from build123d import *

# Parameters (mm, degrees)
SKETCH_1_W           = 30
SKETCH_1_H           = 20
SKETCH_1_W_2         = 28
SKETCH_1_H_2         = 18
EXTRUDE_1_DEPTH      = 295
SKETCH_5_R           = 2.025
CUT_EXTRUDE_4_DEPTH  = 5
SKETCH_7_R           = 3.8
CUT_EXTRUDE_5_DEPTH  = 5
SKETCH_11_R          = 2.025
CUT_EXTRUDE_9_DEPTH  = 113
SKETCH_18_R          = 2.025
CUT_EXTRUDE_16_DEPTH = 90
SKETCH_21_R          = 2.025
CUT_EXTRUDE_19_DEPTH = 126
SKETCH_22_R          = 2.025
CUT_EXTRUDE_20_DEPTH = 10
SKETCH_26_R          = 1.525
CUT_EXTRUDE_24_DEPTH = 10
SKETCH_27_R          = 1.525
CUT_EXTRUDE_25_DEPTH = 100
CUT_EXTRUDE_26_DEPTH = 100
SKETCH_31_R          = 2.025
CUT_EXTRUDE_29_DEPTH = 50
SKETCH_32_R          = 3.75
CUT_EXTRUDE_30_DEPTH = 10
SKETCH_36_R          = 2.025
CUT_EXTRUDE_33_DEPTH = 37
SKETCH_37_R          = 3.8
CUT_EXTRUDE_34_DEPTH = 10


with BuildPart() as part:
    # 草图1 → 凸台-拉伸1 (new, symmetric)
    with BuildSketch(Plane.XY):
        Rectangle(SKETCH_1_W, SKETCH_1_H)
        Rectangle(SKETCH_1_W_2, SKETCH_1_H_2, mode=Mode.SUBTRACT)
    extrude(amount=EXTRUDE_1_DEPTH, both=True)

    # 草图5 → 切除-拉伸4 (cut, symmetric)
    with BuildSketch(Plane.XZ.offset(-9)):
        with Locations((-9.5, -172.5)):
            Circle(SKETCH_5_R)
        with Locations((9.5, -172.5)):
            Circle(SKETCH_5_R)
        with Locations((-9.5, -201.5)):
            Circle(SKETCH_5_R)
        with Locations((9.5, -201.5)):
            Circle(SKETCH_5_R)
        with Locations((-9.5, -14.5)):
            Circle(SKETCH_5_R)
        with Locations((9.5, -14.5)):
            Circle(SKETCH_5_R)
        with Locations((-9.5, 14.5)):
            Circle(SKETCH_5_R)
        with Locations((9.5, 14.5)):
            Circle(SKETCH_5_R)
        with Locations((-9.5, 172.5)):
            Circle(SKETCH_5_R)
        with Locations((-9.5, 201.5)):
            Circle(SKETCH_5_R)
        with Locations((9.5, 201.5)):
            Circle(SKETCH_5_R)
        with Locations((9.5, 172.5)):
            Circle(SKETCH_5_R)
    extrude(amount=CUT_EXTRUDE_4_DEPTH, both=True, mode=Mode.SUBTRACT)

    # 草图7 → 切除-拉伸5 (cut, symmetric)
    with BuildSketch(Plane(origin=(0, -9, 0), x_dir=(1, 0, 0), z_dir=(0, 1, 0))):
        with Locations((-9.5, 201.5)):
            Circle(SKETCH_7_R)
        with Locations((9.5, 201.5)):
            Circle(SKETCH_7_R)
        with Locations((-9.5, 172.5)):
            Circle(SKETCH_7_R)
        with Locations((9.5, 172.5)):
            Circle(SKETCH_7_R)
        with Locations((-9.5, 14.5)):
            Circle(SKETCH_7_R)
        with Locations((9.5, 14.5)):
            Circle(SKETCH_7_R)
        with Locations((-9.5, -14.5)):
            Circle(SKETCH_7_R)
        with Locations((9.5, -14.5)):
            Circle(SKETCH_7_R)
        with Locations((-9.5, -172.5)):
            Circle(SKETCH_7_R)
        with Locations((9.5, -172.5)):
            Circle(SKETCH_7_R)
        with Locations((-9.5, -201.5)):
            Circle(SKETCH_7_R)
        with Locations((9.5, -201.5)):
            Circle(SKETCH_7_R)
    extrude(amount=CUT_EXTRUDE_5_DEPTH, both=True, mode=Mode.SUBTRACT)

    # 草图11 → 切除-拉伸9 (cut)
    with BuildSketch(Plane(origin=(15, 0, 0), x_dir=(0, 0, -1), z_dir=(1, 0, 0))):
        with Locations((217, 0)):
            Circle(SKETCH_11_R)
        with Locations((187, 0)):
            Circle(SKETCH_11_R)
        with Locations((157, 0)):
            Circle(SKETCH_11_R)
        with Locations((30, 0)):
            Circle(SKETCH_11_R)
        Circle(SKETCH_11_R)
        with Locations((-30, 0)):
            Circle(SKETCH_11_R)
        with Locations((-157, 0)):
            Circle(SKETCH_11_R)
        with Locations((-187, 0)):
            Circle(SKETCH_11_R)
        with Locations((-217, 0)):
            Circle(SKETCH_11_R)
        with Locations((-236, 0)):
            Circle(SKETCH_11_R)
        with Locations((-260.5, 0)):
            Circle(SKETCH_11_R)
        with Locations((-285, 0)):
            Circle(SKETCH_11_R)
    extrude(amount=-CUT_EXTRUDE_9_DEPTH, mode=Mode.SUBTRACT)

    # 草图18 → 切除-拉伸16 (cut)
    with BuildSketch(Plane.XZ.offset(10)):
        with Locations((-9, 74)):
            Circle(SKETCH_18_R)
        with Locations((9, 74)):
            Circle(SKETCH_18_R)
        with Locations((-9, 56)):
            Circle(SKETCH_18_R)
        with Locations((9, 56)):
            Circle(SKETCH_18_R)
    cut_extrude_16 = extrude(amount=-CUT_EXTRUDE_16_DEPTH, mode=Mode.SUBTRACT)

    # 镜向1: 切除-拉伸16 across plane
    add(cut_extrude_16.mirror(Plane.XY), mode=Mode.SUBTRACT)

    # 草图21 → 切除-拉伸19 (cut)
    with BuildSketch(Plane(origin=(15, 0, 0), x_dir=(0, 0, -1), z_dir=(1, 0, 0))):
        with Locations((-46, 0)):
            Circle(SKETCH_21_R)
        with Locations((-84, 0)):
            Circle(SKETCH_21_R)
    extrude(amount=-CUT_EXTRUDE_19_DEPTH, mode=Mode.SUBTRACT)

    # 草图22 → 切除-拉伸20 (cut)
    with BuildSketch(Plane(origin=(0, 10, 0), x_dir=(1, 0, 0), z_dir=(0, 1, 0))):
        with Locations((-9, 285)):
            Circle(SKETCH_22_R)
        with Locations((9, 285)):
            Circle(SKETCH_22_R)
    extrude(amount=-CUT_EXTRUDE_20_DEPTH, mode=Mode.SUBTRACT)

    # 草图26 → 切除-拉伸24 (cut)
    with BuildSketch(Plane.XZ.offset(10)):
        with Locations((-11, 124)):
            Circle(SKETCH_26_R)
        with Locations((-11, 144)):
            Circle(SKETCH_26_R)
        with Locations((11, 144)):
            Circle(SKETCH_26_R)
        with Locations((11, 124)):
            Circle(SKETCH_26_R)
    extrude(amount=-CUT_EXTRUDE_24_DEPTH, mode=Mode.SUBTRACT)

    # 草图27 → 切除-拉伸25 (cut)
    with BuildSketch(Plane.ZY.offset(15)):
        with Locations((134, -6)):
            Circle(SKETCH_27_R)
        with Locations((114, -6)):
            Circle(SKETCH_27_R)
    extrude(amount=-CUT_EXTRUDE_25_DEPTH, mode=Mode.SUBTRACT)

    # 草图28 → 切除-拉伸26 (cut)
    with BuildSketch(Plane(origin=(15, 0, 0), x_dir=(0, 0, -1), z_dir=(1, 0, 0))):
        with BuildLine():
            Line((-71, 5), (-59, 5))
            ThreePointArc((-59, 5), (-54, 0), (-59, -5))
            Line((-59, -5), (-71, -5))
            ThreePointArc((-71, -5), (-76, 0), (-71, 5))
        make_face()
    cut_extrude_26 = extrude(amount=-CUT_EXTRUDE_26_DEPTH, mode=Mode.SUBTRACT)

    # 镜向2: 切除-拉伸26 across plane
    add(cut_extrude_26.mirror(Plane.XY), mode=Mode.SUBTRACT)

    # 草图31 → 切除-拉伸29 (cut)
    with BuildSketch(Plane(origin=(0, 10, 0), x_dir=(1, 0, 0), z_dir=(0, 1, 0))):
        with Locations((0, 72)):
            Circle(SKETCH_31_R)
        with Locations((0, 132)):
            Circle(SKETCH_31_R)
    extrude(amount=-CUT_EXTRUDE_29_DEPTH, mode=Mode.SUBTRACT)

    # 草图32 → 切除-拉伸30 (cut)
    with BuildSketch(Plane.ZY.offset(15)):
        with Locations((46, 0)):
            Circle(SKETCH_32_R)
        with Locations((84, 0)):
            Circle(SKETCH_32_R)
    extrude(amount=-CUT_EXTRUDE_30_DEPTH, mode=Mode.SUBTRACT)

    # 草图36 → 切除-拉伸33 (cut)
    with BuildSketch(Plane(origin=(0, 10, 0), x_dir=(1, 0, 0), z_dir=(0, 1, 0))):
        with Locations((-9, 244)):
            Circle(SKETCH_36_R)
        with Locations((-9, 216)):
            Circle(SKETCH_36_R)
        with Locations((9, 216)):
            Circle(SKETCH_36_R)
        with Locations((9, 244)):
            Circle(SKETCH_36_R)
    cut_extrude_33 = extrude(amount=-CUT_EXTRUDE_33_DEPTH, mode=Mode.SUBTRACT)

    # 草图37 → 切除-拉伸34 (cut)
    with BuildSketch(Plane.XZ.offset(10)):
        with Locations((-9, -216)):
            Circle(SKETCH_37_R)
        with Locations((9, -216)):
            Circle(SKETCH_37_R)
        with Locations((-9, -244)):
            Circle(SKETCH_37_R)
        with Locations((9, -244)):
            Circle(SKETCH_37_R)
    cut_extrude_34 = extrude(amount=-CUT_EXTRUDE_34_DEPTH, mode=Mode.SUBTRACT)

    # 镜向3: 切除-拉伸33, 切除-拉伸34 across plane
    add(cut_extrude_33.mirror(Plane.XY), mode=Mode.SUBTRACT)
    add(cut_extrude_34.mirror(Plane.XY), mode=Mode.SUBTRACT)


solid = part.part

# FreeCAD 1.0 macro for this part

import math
import FreeCAD as App
import Part
import Sketcher
Q = App.Units.Quantity

doc = App.newDocument("Part")
params = doc.addObject("Spreadsheet::Sheet", "Params")
for row, (alias, value) in enumerate([
    ("sketch1_width", "30 mm"),
    ("sketch1_width2", "28 mm"),
    ("sketch1_height", "20 mm"),
    ("sketch1_height2", "18 mm"),
    ("pad1_length", "590 mm"),
    ("sketch2_diameter", "4.05 mm"),
    ("pocket1_length", "10 mm"),
    ("sketch3_diameter", "7.6 mm"),
    ("pocket2_length", "10 mm"),
    ("sketch4_diameter", "4.05 mm"),
    ("pocket3_length", "113 mm"),
    ("sketch5_diameter", "4.05 mm"),
    ("pocket4_length", "90 mm"),
    ("sketch6_diameter", "4.05 mm"),
    ("pocket5_length", "126 mm"),
    ("sketch7_diameter", "4.05 mm"),
    ("pocket6_length", "10 mm"),
    ("sketch8_diameter", "3.05 mm"),
    ("pocket7_length", "10 mm"),
    ("sketch9_diameter", "3.05 mm"),
    ("pocket8_length", "100 mm"),
    ("sketch10_radius", "5 mm"),
    ("sketch10_height", "12 mm"),
    ("pocket9_length", "100 mm"),
    ("sketch11_diameter", "4.05 mm"),
    ("pocket10_length", "50 mm"),
    ("sketch12_diameter", "7.5 mm"),
    ("pocket11_length", "10 mm"),
    ("sketch13_diameter", "4.05 mm"),
    ("pocket12_length", "37 mm"),
    ("sketch14_diameter", "7.6 mm"),
    ("pocket13_length", "10 mm"),
], start=1):
    params.set(f"A{row}", alias)
    params.set(f"B{row}", "=" + value)
    params.setAlias(f"B{row}", alias)

body = doc.addObject("PartDesign::Body", "Body")

# Sketch on XY plane
sketch1 = body.newObject("Sketcher::SketchObject", "Sketch")
sketch1.AttachmentSupport = (doc.getObject("XY_Plane"), [""])
sketch1.MapMode = "FlatFace"
sketch1.addGeometry(Part.LineSegment(App.Vector(-15, 10, 0), App.Vector(-15, -10, 0)), False)
sketch1.addGeometry(Part.LineSegment(App.Vector(-15, -10, 0), App.Vector(15, -10, 0)), False)
sketch1.addGeometry(Part.LineSegment(App.Vector(15, -10, 0), App.Vector(15, 10, 0)), False)
sketch1.addGeometry(Part.LineSegment(App.Vector(15, 10, 0), App.Vector(-15, 10, 0)), False)
sketch1.addGeometry(Part.LineSegment(App.Vector(14, -9, 0), App.Vector(-14, -9, 0)), False)
sketch1.addGeometry(Part.LineSegment(App.Vector(-14, -9, 0), App.Vector(-14, 9, 0)), False)
sketch1.addGeometry(Part.LineSegment(App.Vector(-14, 9, 0), App.Vector(14, 9, 0)), False)
sketch1.addGeometry(Part.LineSegment(App.Vector(14, 9, 0), App.Vector(14, -9, 0)), False)
sketch1.addConstraint(Sketcher.Constraint("Coincident", 0, 2, 1, 1))
sketch1.addConstraint(Sketcher.Constraint("Coincident", 1, 2, 2, 1))
sketch1.addConstraint(Sketcher.Constraint("Coincident", 2, 2, 3, 1))
sketch1.addConstraint(Sketcher.Constraint("Coincident", 3, 2, 0, 1))
sketch1.addConstraint(Sketcher.Constraint("Coincident", 4, 2, 5, 1))
sketch1.addConstraint(Sketcher.Constraint("Coincident", 5, 2, 6, 1))
sketch1.addConstraint(Sketcher.Constraint("Coincident", 6, 2, 7, 1))
sketch1.addConstraint(Sketcher.Constraint("Coincident", 7, 2, 4, 1))
sketch1.addConstraint(Sketcher.Constraint("Vertical", 0))
sketch1.addConstraint(Sketcher.Constraint("Horizontal", 1))
sketch1.addConstraint(Sketcher.Constraint("Vertical", 2))
sketch1.addConstraint(Sketcher.Constraint("Horizontal", 3))
sketch1.addConstraint(Sketcher.Constraint("Horizontal", 4))
sketch1.addConstraint(Sketcher.Constraint("Vertical", 5))
sketch1.addConstraint(Sketcher.Constraint("Horizontal", 6))
sketch1.addConstraint(Sketcher.Constraint("Vertical", 7))
sketch1.addConstraint(Sketcher.Constraint("Symmetric", 0, 2, 2, 2, -1, 1))
sketch1.addConstraint(Sketcher.Constraint("Symmetric", 4, 2, 6, 2, -1, 1))
sketch1.addConstraint(Sketcher.Constraint("DistanceX", 1, 1, 1, 2, Q("30 mm")))
sketch1.addConstraint(Sketcher.Constraint("DistanceX", 4, 2, 4, 1, Q("28 mm")))
sketch1.addConstraint(Sketcher.Constraint("DistanceY", 0, 2, 0, 1, Q("20 mm")))
sketch1.addConstraint(Sketcher.Constraint("DistanceY", 5, 1, 5, 2, Q("18 mm")))
sketch1.setExpression("Constraints[18]", "Params.sketch1_width")
sketch1.setExpression("Constraints[19]", "Params.sketch1_width2")
sketch1.setExpression("Constraints[20]", "Params.sketch1_height")
sketch1.setExpression("Constraints[21]", "Params.sketch1_height2")
pad1 = body.newObject("PartDesign::Pad", "Pad")
pad1.Profile = sketch1
pad1.setExpression("Length", "Params.pad1_length")
pad1.Midplane = True

# Sketch on XZ plane
sketch2 = body.newObject("Sketcher::SketchObject", "Sketch001")
sketch2.AttachmentSupport = (doc.getObject("XZ_Plane"), [""])
sketch2.MapMode = "FlatFace"
sketch2.AttachmentOffset = App.Placement(App.Vector(0, 0, -9), App.Rotation())
sketch2.addGeometry(Part.Circle(App.Vector(-9.5, -172.5, 0), App.Vector(0, 0, 1), 2), False)
sketch2.addGeometry(Part.Circle(App.Vector(9.5, -172.5, 0), App.Vector(0, 0, 1), 2), False)
sketch2.addGeometry(Part.Circle(App.Vector(-9.5, -201.5, 0), App.Vector(0, 0, 1), 2), False)
sketch2.addGeometry(Part.Circle(App.Vector(9.5, -201.5, 0), App.Vector(0, 0, 1), 2), False)
sketch2.addGeometry(Part.Circle(App.Vector(-9.5, -14.5, 0), App.Vector(0, 0, 1), 2), False)
sketch2.addGeometry(Part.Circle(App.Vector(9.5, -14.5, 0), App.Vector(0, 0, 1), 2), False)
sketch2.addGeometry(Part.Circle(App.Vector(-9.5, 14.5, 0), App.Vector(0, 0, 1), 2), False)
sketch2.addGeometry(Part.Circle(App.Vector(9.5, 14.5, 0), App.Vector(0, 0, 1), 2), False)
sketch2.addGeometry(Part.Circle(App.Vector(-9.5, 172.5, 0), App.Vector(0, 0, 1), 2), False)
sketch2.addGeometry(Part.Circle(App.Vector(-9.5, 201.5, 0), App.Vector(0, 0, 1), 2), False)
sketch2.addGeometry(Part.Circle(App.Vector(9.5, 201.5, 0), App.Vector(0, 0, 1), 2), False)
sketch2.addGeometry(Part.Circle(App.Vector(9.5, 172.5, 0), App.Vector(0, 0, 1), 2), False)
sketch2.addConstraint(Sketcher.Constraint("Equal", 0, 1))
sketch2.addConstraint(Sketcher.Constraint("Equal", 1, 2))
sketch2.addConstraint(Sketcher.Constraint("Equal", 2, 3))
sketch2.addConstraint(Sketcher.Constraint("Equal", 3, 4))
sketch2.addConstraint(Sketcher.Constraint("Equal", 4, 5))
sketch2.addConstraint(Sketcher.Constraint("Equal", 5, 6))
sketch2.addConstraint(Sketcher.Constraint("Equal", 6, 7))
sketch2.addConstraint(Sketcher.Constraint("Equal", 7, 8))
sketch2.addConstraint(Sketcher.Constraint("Equal", 8, 9))
sketch2.addConstraint(Sketcher.Constraint("Equal", 9, 10))
sketch2.addConstraint(Sketcher.Constraint("Equal", 10, 11))
sketch2.addConstraint(Sketcher.Constraint("Symmetric", 5, 3, 6, 3, -1, 1))
sketch2.addConstraint(Sketcher.Constraint("Symmetric", 4, 3, 7, 3, -1, 1))
sketch2.addConstraint(Sketcher.Constraint("Symmetric", 1, 3, 8, 3, -1, 1))
sketch2.addConstraint(Sketcher.Constraint("Symmetric", 3, 3, 9, 3, -1, 1))
sketch2.addConstraint(Sketcher.Constraint("Symmetric", 2, 3, 10, 3, -1, 1))
sketch2.addConstraint(Sketcher.Constraint("Symmetric", 0, 3, 11, 3, -1, 1))
sketch2.addConstraint(Sketcher.Constraint("Symmetric", 0, 3, 1, 3, -2))
sketch2.addConstraint(Sketcher.Constraint("Symmetric", 2, 3, 3, 3, -2))
sketch2.addConstraint(Sketcher.Constraint("Symmetric", 4, 3, 5, 3, -2))
sketch2.addConstraint(Sketcher.Constraint("Vertical", 0, 3, 2, 3))
sketch2.addConstraint(Sketcher.Constraint("Vertical", 2, 3, 4, 3))
sketch2.addConstraint(Sketcher.Constraint("Diameter", 0, Q("4.05 mm")))
sketch2.addConstraint(Sketcher.Constraint("DistanceX", 0, 3, 1, 3, Q("19 mm")))
sketch2.addConstraint(Sketcher.Constraint("DistanceY", 2, 3, 0, 3, Q("29 mm")))
sketch2.addConstraint(Sketcher.Constraint("DistanceY", 0, 3, 4, 3, Q("158 mm")))
sketch2.addConstraint(Sketcher.Constraint("DistanceY", 4, 3, 6, 3, Q("29 mm")))
sketch2.setExpression("Constraints[22]", "Params.sketch2_diameter")
pocket1 = body.newObject("PartDesign::Pocket", "Pocket")
pocket1.Profile = sketch2
pocket1.setExpression("Length", "Params.pocket1_length")
pocket1.Midplane = True

# Sketch on XZ plane
sketch3 = body.newObject("Sketcher::SketchObject", "Sketch002")
sketch3.AttachmentSupport = (doc.getObject("XZ_Plane"), [""])
sketch3.MapMode = "FlatFace"
sketch3.AttachmentOffset = App.Placement(App.Vector(0, 0, 9), App.Rotation())
sketch3.addGeometry(Part.Circle(App.Vector(-9.5, -201.5, 0), App.Vector(0, 0, 1), 3.8), False)
sketch3.addGeometry(Part.Circle(App.Vector(9.5, -201.5, 0), App.Vector(0, 0, 1), 3.8), False)
sketch3.addGeometry(Part.Circle(App.Vector(-9.5, -172.5, 0), App.Vector(0, 0, 1), 3.8), False)
sketch3.addGeometry(Part.Circle(App.Vector(9.5, -172.5, 0), App.Vector(0, 0, 1), 3.8), False)
sketch3.addGeometry(Part.Circle(App.Vector(-9.5, -14.5, 0), App.Vector(0, 0, 1), 3.8), False)
sketch3.addGeometry(Part.Circle(App.Vector(9.5, -14.5, 0), App.Vector(0, 0, 1), 3.8), False)
sketch3.addGeometry(Part.Circle(App.Vector(-9.5, 14.5, 0), App.Vector(0, 0, 1), 3.8), False)
sketch3.addGeometry(Part.Circle(App.Vector(9.5, 14.5, 0), App.Vector(0, 0, 1), 3.8), False)
sketch3.addGeometry(Part.Circle(App.Vector(-9.5, 172.5, 0), App.Vector(0, 0, 1), 3.8), False)
sketch3.addGeometry(Part.Circle(App.Vector(9.5, 172.5, 0), App.Vector(0, 0, 1), 3.8), False)
sketch3.addGeometry(Part.Circle(App.Vector(-9.5, 201.5, 0), App.Vector(0, 0, 1), 3.8), False)
sketch3.addGeometry(Part.Circle(App.Vector(9.5, 201.5, 0), App.Vector(0, 0, 1), 3.8), False)
sketch3.addConstraint(Sketcher.Constraint("Equal", 0, 1))
sketch3.addConstraint(Sketcher.Constraint("Equal", 1, 2))
sketch3.addConstraint(Sketcher.Constraint("Equal", 2, 3))
sketch3.addConstraint(Sketcher.Constraint("Equal", 3, 4))
sketch3.addConstraint(Sketcher.Constraint("Equal", 4, 5))
sketch3.addConstraint(Sketcher.Constraint("Equal", 5, 6))
sketch3.addConstraint(Sketcher.Constraint("Equal", 6, 7))
sketch3.addConstraint(Sketcher.Constraint("Equal", 7, 8))
sketch3.addConstraint(Sketcher.Constraint("Equal", 8, 9))
sketch3.addConstraint(Sketcher.Constraint("Equal", 9, 10))
sketch3.addConstraint(Sketcher.Constraint("Equal", 10, 11))
sketch3.addConstraint(Sketcher.Constraint("Symmetric", 5, 3, 6, 3, -1, 1))
sketch3.addConstraint(Sketcher.Constraint("Symmetric", 4, 3, 7, 3, -1, 1))
sketch3.addConstraint(Sketcher.Constraint("Symmetric", 3, 3, 8, 3, -1, 1))
sketch3.addConstraint(Sketcher.Constraint("Symmetric", 2, 3, 9, 3, -1, 1))
sketch3.addConstraint(Sketcher.Constraint("Symmetric", 1, 3, 10, 3, -1, 1))
sketch3.addConstraint(Sketcher.Constraint("Symmetric", 0, 3, 11, 3, -1, 1))
sketch3.addConstraint(Sketcher.Constraint("Symmetric", 0, 3, 1, 3, -2))
sketch3.addConstraint(Sketcher.Constraint("Symmetric", 2, 3, 3, 3, -2))
sketch3.addConstraint(Sketcher.Constraint("Symmetric", 4, 3, 5, 3, -2))
sketch3.addConstraint(Sketcher.Constraint("Vertical", 0, 3, 2, 3))
sketch3.addConstraint(Sketcher.Constraint("Vertical", 2, 3, 4, 3))
sketch3.addConstraint(Sketcher.Constraint("Diameter", 0, Q("7.6 mm")))
sketch3.addConstraint(Sketcher.Constraint("DistanceX", 0, 3, 1, 3, Q("19 mm")))
sketch3.addConstraint(Sketcher.Constraint("DistanceY", 0, 3, 2, 3, Q("29 mm")))
sketch3.addConstraint(Sketcher.Constraint("DistanceY", 2, 3, 4, 3, Q("158 mm")))
sketch3.addConstraint(Sketcher.Constraint("DistanceY", 4, 3, 6, 3, Q("29 mm")))
sketch3.setExpression("Constraints[22]", "Params.sketch3_diameter")
pocket2 = body.newObject("PartDesign::Pocket", "Pocket001")
pocket2.Profile = sketch3
pocket2.setExpression("Length", "Params.pocket2_length")
pocket2.Midplane = True

# Sketch on YZ plane
sketch4 = body.newObject("Sketcher::SketchObject", "Sketch003")
sketch4.AttachmentSupport = (doc.getObject("YZ_Plane"), [""])
sketch4.MapMode = "FlatFace"
sketch4.AttachmentOffset = App.Placement(App.Vector(0, 0, 15), App.Rotation())
sketch4.addGeometry(Part.Circle(App.Vector(0, -217, 0), App.Vector(0, 0, 1), 2), False)
sketch4.addGeometry(Part.Circle(App.Vector(0, -187, 0), App.Vector(0, 0, 1), 2), False)
sketch4.addGeometry(Part.Circle(App.Vector(0, -157, 0), App.Vector(0, 0, 1), 2), False)
sketch4.addGeometry(Part.Circle(App.Vector(0, -30, 0), App.Vector(0, 0, 1), 2), False)
sketch4.addGeometry(Part.Circle(App.Vector(0, 0, 0), App.Vector(0, 0, 1), 2), False)
sketch4.addGeometry(Part.Circle(App.Vector(0, 30, 0), App.Vector(0, 0, 1), 2), False)
sketch4.addGeometry(Part.Circle(App.Vector(0, 157, 0), App.Vector(0, 0, 1), 2), False)
sketch4.addGeometry(Part.Circle(App.Vector(0, 187, 0), App.Vector(0, 0, 1), 2), False)
sketch4.addGeometry(Part.Circle(App.Vector(0, 217, 0), App.Vector(0, 0, 1), 2), False)
sketch4.addGeometry(Part.Circle(App.Vector(0, 236, 0), App.Vector(0, 0, 1), 2), False)
sketch4.addGeometry(Part.Circle(App.Vector(0, 260.5, 0), App.Vector(0, 0, 1), 2), False)
sketch4.addGeometry(Part.Circle(App.Vector(0, 285, 0), App.Vector(0, 0, 1), 2), False)
sketch4.addConstraint(Sketcher.Constraint("Coincident", 4, 3, -1, 1))
sketch4.addConstraint(Sketcher.Constraint("Equal", 0, 1))
sketch4.addConstraint(Sketcher.Constraint("Equal", 1, 2))
sketch4.addConstraint(Sketcher.Constraint("Equal", 2, 3))
sketch4.addConstraint(Sketcher.Constraint("Equal", 3, 4))
sketch4.addConstraint(Sketcher.Constraint("Equal", 4, 5))
sketch4.addConstraint(Sketcher.Constraint("Equal", 5, 6))
sketch4.addConstraint(Sketcher.Constraint("Equal", 6, 7))
sketch4.addConstraint(Sketcher.Constraint("Equal", 7, 8))
sketch4.addConstraint(Sketcher.Constraint("Equal", 8, 9))
sketch4.addConstraint(Sketcher.Constraint("Equal", 9, 10))
sketch4.addConstraint(Sketcher.Constraint("Equal", 10, 11))
sketch4.addConstraint(Sketcher.Constraint("Symmetric", 3, 3, 5, 3, -1, 1))
sketch4.addConstraint(Sketcher.Constraint("Symmetric", 2, 3, 6, 3, -1, 1))
sketch4.addConstraint(Sketcher.Constraint("Symmetric", 1, 3, 7, 3, -1, 1))
sketch4.addConstraint(Sketcher.Constraint("Symmetric", 0, 3, 8, 3, -1, 1))
sketch4.addConstraint(Sketcher.Constraint("PointOnObject", 0, 3, -2))
sketch4.addConstraint(Sketcher.Constraint("PointOnObject", 1, 3, -2))
sketch4.addConstraint(Sketcher.Constraint("PointOnObject", 2, 3, -2))
sketch4.addConstraint(Sketcher.Constraint("PointOnObject", 3, 3, -2))
sketch4.addConstraint(Sketcher.Constraint("PointOnObject", 9, 3, -2))
sketch4.addConstraint(Sketcher.Constraint("PointOnObject", 10, 3, -2))
sketch4.addConstraint(Sketcher.Constraint("PointOnObject", 11, 3, -2))
sketch4.addConstraint(Sketcher.Constraint("Diameter", 0, Q("4.05 mm")))
sketch4.addConstraint(Sketcher.Constraint("DistanceY", 0, 3, -1, 1, Q("217 mm")))
sketch4.addConstraint(Sketcher.Constraint("DistanceY", 1, 3, -1, 1, Q("187 mm")))
sketch4.addConstraint(Sketcher.Constraint("DistanceY", 2, 3, -1, 1, Q("157 mm")))
sketch4.addConstraint(Sketcher.Constraint("DistanceY", 3, 3, -1, 1, Q("30 mm")))
sketch4.addConstraint(Sketcher.Constraint("DistanceY", -1, 1, 9, 3, Q("236 mm")))
sketch4.addConstraint(Sketcher.Constraint("DistanceY", -1, 1, 11, 3, Q("285 mm")))
sketch4.addConstraint(Sketcher.Constraint("DistanceY", -1, 1, 10, 3, Q("260.5 mm")))
sketch4.setExpression("Constraints[23]", "Params.sketch4_diameter")
pocket3 = body.newObject("PartDesign::Pocket", "Pocket002")
pocket3.Profile = sketch4
pocket3.setExpression("Length", "Params.pocket3_length")

# Sketch on XZ plane
sketch5 = body.newObject("Sketcher::SketchObject", "Sketch004")
sketch5.AttachmentSupport = (doc.getObject("XZ_Plane"), [""])
sketch5.MapMode = "FlatFace"
sketch5.AttachmentOffset = App.Placement(App.Vector(0, 0, 10), App.Rotation())
sketch5.addGeometry(Part.Circle(App.Vector(-9, 74, 0), App.Vector(0, 0, 1), 2), False)
sketch5.addGeometry(Part.Circle(App.Vector(9, 74, 0), App.Vector(0, 0, 1), 2), False)
sketch5.addGeometry(Part.Circle(App.Vector(-9, 56, 0), App.Vector(0, 0, 1), 2), False)
sketch5.addGeometry(Part.Circle(App.Vector(9, 56, 0), App.Vector(0, 0, 1), 2), False)
sketch5.addConstraint(Sketcher.Constraint("Equal", 0, 1))
sketch5.addConstraint(Sketcher.Constraint("Equal", 1, 2))
sketch5.addConstraint(Sketcher.Constraint("Equal", 2, 3))
sketch5.addConstraint(Sketcher.Constraint("Symmetric", 0, 3, 1, 3, -2))
sketch5.addConstraint(Sketcher.Constraint("Symmetric", 2, 3, 3, 3, -2))
sketch5.addConstraint(Sketcher.Constraint("Vertical", 0, 3, 2, 3))
sketch5.addConstraint(Sketcher.Constraint("Diameter", 0, Q("4.05 mm")))
sketch5.addConstraint(Sketcher.Constraint("DistanceX", 0, 3, -1, 1, Q("9 mm")))
sketch5.addConstraint(Sketcher.Constraint("DistanceY", -1, 1, 0, 3, Q("74 mm")))
sketch5.addConstraint(Sketcher.Constraint("DistanceY", -1, 1, 2, 3, Q("56 mm")))
sketch5.setExpression("Constraints[6]", "Params.sketch5_diameter")
pocket4 = body.newObject("PartDesign::Pocket", "Pocket003")
pocket4.Profile = sketch5
pocket4.setExpression("Length", "Params.pocket4_length")
doc.recompute()

mirrored = body.newObject("PartDesign::Mirrored", "Mirrored")
mirrored.Originals = [pocket4]
mirrored.MirrorPlane = (doc.getObject("XY_Plane"), [""])
body.Tip = mirrored

# Sketch on YZ plane
sketch6 = body.newObject("Sketcher::SketchObject", "Sketch005")
sketch6.AttachmentSupport = (doc.getObject("YZ_Plane"), [""])
sketch6.MapMode = "FlatFace"
sketch6.AttachmentOffset = App.Placement(App.Vector(0, 0, 15), App.Rotation())
sketch6.addGeometry(Part.Circle(App.Vector(0, 46, 0), App.Vector(0, 0, 1), 2), False)
sketch6.addGeometry(Part.Circle(App.Vector(0, 84, 0), App.Vector(0, 0, 1), 2), False)
sketch6.addConstraint(Sketcher.Constraint("Equal", 0, 1))
sketch6.addConstraint(Sketcher.Constraint("PointOnObject", 0, 3, -2))
sketch6.addConstraint(Sketcher.Constraint("PointOnObject", 1, 3, -2))
sketch6.addConstraint(Sketcher.Constraint("Diameter", 0, Q("4.05 mm")))
sketch6.addConstraint(Sketcher.Constraint("DistanceY", -1, 1, 0, 3, Q("46 mm")))
sketch6.addConstraint(Sketcher.Constraint("DistanceY", -1, 1, 1, 3, Q("84 mm")))
sketch6.setExpression("Constraints[3]", "Params.sketch6_diameter")
pocket5 = body.newObject("PartDesign::Pocket", "Pocket004")
pocket5.Profile = sketch6
pocket5.setExpression("Length", "Params.pocket5_length")

# Sketch on XZ plane
sketch7 = body.newObject("Sketcher::SketchObject", "Sketch006")
sketch7.AttachmentSupport = (doc.getObject("XZ_Plane"), [""])
sketch7.MapMode = "FlatFace"
sketch7.AttachmentOffset = App.Placement(App.Vector(0, 0, -10), App.Rotation())
sketch7.addGeometry(Part.Circle(App.Vector(-9, -285, 0), App.Vector(0, 0, 1), 2), False)
sketch7.addGeometry(Part.Circle(App.Vector(9, -285, 0), App.Vector(0, 0, 1), 2), False)
sketch7.addConstraint(Sketcher.Constraint("Equal", 0, 1))
sketch7.addConstraint(Sketcher.Constraint("Symmetric", 0, 3, 1, 3, -2))
sketch7.addConstraint(Sketcher.Constraint("Diameter", 0, Q("4.05 mm")))
sketch7.addConstraint(Sketcher.Constraint("DistanceX", 0, 3, -1, 1, Q("9 mm")))
sketch7.addConstraint(Sketcher.Constraint("DistanceY", 0, 3, -1, 1, Q("285 mm")))
sketch7.setExpression("Constraints[2]", "Params.sketch7_diameter")
pocket6 = body.newObject("PartDesign::Pocket", "Pocket005")
pocket6.Profile = sketch7
pocket6.setExpression("Length", "Params.pocket6_length")
pocket6.Reversed = True

# Sketch on XZ plane
sketch8 = body.newObject("Sketcher::SketchObject", "Sketch007")
sketch8.AttachmentSupport = (doc.getObject("XZ_Plane"), [""])
sketch8.MapMode = "FlatFace"
sketch8.AttachmentOffset = App.Placement(App.Vector(0, 0, 10), App.Rotation())
sketch8.addGeometry(Part.Circle(App.Vector(-11, 124, 0), App.Vector(0, 0, 1), 1.5), False)
sketch8.addGeometry(Part.Circle(App.Vector(-11, 144, 0), App.Vector(0, 0, 1), 1.5), False)
sketch8.addGeometry(Part.Circle(App.Vector(11, 144, 0), App.Vector(0, 0, 1), 1.5), False)
sketch8.addGeometry(Part.Circle(App.Vector(11, 124, 0), App.Vector(0, 0, 1), 1.5), False)
sketch8.addConstraint(Sketcher.Constraint("Equal", 0, 1))
sketch8.addConstraint(Sketcher.Constraint("Equal", 1, 2))
sketch8.addConstraint(Sketcher.Constraint("Equal", 2, 3))
sketch8.addConstraint(Sketcher.Constraint("Symmetric", 1, 3, 2, 3, -2))
sketch8.addConstraint(Sketcher.Constraint("Symmetric", 0, 3, 3, 3, -2))
sketch8.addConstraint(Sketcher.Constraint("Vertical", 0, 3, 1, 3))
sketch8.addConstraint(Sketcher.Constraint("Diameter", 0, Q("3.05 mm")))
sketch8.addConstraint(Sketcher.Constraint("DistanceX", 0, 3, -1, 1, Q("11 mm")))
sketch8.addConstraint(Sketcher.Constraint("DistanceY", -1, 1, 0, 3, Q("124 mm")))
sketch8.addConstraint(Sketcher.Constraint("DistanceY", -1, 1, 1, 3, Q("144 mm")))
sketch8.setExpression("Constraints[6]", "Params.sketch8_diameter")
pocket7 = body.newObject("PartDesign::Pocket", "Pocket006")
pocket7.Profile = sketch8
pocket7.setExpression("Length", "Params.pocket7_length")

# Sketch on YZ plane
sketch9 = body.newObject("Sketcher::SketchObject", "Sketch008")
sketch9.AttachmentSupport = (doc.getObject("YZ_Plane"), [""])
sketch9.MapMode = "FlatFace"
sketch9.AttachmentOffset = App.Placement(App.Vector(0, 0, -15), App.Rotation())
sketch9.addGeometry(Part.Circle(App.Vector(-6, 134, 0), App.Vector(0, 0, 1), 1.5), False)
sketch9.addGeometry(Part.Circle(App.Vector(-6, 114, 0), App.Vector(0, 0, 1), 1.5), False)
sketch9.addConstraint(Sketcher.Constraint("Equal", 0, 1))
sketch9.addConstraint(Sketcher.Constraint("Vertical", 0, 3, 1, 3))
sketch9.addConstraint(Sketcher.Constraint("Diameter", 0, Q("3.05 mm")))
sketch9.addConstraint(Sketcher.Constraint("DistanceX", 0, 3, -1, 1, Q("6 mm")))
sketch9.addConstraint(Sketcher.Constraint("DistanceY", -1, 1, 0, 3, Q("134 mm")))
sketch9.addConstraint(Sketcher.Constraint("DistanceY", -1, 1, 1, 3, Q("114 mm")))
sketch9.setExpression("Constraints[2]", "Params.sketch9_diameter")
pocket8 = body.newObject("PartDesign::Pocket", "Pocket007")
pocket8.Profile = sketch9
pocket8.setExpression("Length", "Params.pocket8_length")
pocket8.Reversed = True

# Sketch on YZ plane
sketch10 = body.newObject("Sketcher::SketchObject", "Sketch009")
sketch10.AttachmentSupport = (doc.getObject("YZ_Plane"), [""])
sketch10.MapMode = "FlatFace"
sketch10.AttachmentOffset = App.Placement(App.Vector(0, 0, 15), App.Rotation())
sketch10.addGeometry(Part.LineSegment(App.Vector(5, 59, 0), App.Vector(5, 71, 0)), False)
sketch10.addGeometry(Part.ArcOfCircle(Part.Circle(App.Vector(0, 71, 0), App.Vector(0, 0, 1), 5), math.radians(0), math.radians(180)), False)
sketch10.addGeometry(Part.LineSegment(App.Vector(-5, 71, 0), App.Vector(-5, 59, 0)), False)
sketch10.addGeometry(Part.ArcOfCircle(Part.Circle(App.Vector(0, 59, 0), App.Vector(0, 0, 1), 5), math.radians(180), math.radians(360)), False)
sketch10.addConstraint(Sketcher.Constraint("Tangent", 0, 2, 1, 1))
sketch10.addConstraint(Sketcher.Constraint("Tangent", 1, 2, 2, 1))
sketch10.addConstraint(Sketcher.Constraint("Tangent", 2, 2, 3, 1))
sketch10.addConstraint(Sketcher.Constraint("Tangent", 3, 2, 0, 1))
sketch10.addConstraint(Sketcher.Constraint("Vertical", 0))
sketch10.addConstraint(Sketcher.Constraint("Vertical", 2))
sketch10.addConstraint(Sketcher.Constraint("PointOnObject", 1, 3, -2))
sketch10.addConstraint(Sketcher.Constraint("Radius", 1, Q("5 mm")))
sketch10.addConstraint(Sketcher.Constraint("DistanceY", 0, 1, 0, 2, Q("12 mm")))
sketch10.addConstraint(Sketcher.Constraint("DistanceY", -1, 1, 1, 3, Q("71 mm")))
sketch10.setExpression("Constraints[7]", "Params.sketch10_radius")
sketch10.setExpression("Constraints[8]", "Params.sketch10_height")
pocket9 = body.newObject("PartDesign::Pocket", "Pocket008")
pocket9.Profile = sketch10
pocket9.setExpression("Length", "Params.pocket9_length")
doc.recompute()

mirrored2 = body.newObject("PartDesign::Mirrored", "Mirrored001")
mirrored2.Originals = [pocket9]
mirrored2.MirrorPlane = (doc.getObject("XY_Plane"), [""])
body.Tip = mirrored2

# Sketch on XZ plane
sketch11 = body.newObject("Sketcher::SketchObject", "Sketch010")
sketch11.AttachmentSupport = (doc.getObject("XZ_Plane"), [""])
sketch11.MapMode = "FlatFace"
sketch11.AttachmentOffset = App.Placement(App.Vector(0, 0, -10), App.Rotation())
sketch11.addGeometry(Part.Circle(App.Vector(0, -72, 0), App.Vector(0, 0, 1), 2), False)
sketch11.addGeometry(Part.Circle(App.Vector(0, -132, 0), App.Vector(0, 0, 1), 2), False)
sketch11.addConstraint(Sketcher.Constraint("Equal", 0, 1))
sketch11.addConstraint(Sketcher.Constraint("PointOnObject", 0, 3, -2))
sketch11.addConstraint(Sketcher.Constraint("PointOnObject", 1, 3, -2))
sketch11.addConstraint(Sketcher.Constraint("Diameter", 0, Q("4.05 mm")))
sketch11.addConstraint(Sketcher.Constraint("DistanceY", 0, 3, -1, 1, Q("72 mm")))
sketch11.addConstraint(Sketcher.Constraint("DistanceY", 1, 3, -1, 1, Q("132 mm")))
sketch11.setExpression("Constraints[3]", "Params.sketch11_diameter")
pocket10 = body.newObject("PartDesign::Pocket", "Pocket009")
pocket10.Profile = sketch11
pocket10.setExpression("Length", "Params.pocket10_length")
pocket10.Reversed = True

# Sketch on YZ plane
sketch12 = body.newObject("Sketcher::SketchObject", "Sketch011")
sketch12.AttachmentSupport = (doc.getObject("YZ_Plane"), [""])
sketch12.MapMode = "FlatFace"
sketch12.AttachmentOffset = App.Placement(App.Vector(0, 0, -15), App.Rotation())
sketch12.addGeometry(Part.Circle(App.Vector(0, 46, 0), App.Vector(0, 0, 1), 3.8), False)
sketch12.addGeometry(Part.Circle(App.Vector(0, 84, 0), App.Vector(0, 0, 1), 3.8), False)
sketch12.addConstraint(Sketcher.Constraint("Equal", 0, 1))
sketch12.addConstraint(Sketcher.Constraint("PointOnObject", 0, 3, -2))
sketch12.addConstraint(Sketcher.Constraint("PointOnObject", 1, 3, -2))
sketch12.addConstraint(Sketcher.Constraint("Diameter", 0, Q("7.5 mm")))
sketch12.addConstraint(Sketcher.Constraint("DistanceY", -1, 1, 0, 3, Q("46 mm")))
sketch12.addConstraint(Sketcher.Constraint("DistanceY", -1, 1, 1, 3, Q("84 mm")))
sketch12.setExpression("Constraints[3]", "Params.sketch12_diameter")
pocket11 = body.newObject("PartDesign::Pocket", "Pocket010")
pocket11.Profile = sketch12
pocket11.setExpression("Length", "Params.pocket11_length")
pocket11.Reversed = True

# Sketch on XZ plane
sketch13 = body.newObject("Sketcher::SketchObject", "Sketch012")
sketch13.AttachmentSupport = (doc.getObject("XZ_Plane"), [""])
sketch13.MapMode = "FlatFace"
sketch13.AttachmentOffset = App.Placement(App.Vector(0, 0, -10), App.Rotation())
sketch13.addGeometry(Part.Circle(App.Vector(-9, -244, 0), App.Vector(0, 0, 1), 2), False)
sketch13.addGeometry(Part.Circle(App.Vector(-9, -216, 0), App.Vector(0, 0, 1), 2), False)
sketch13.addGeometry(Part.Circle(App.Vector(9, -216, 0), App.Vector(0, 0, 1), 2), False)
sketch13.addGeometry(Part.Circle(App.Vector(9, -244, 0), App.Vector(0, 0, 1), 2), False)
sketch13.addConstraint(Sketcher.Constraint("Equal", 0, 1))
sketch13.addConstraint(Sketcher.Constraint("Equal", 1, 2))
sketch13.addConstraint(Sketcher.Constraint("Equal", 2, 3))
sketch13.addConstraint(Sketcher.Constraint("Symmetric", 1, 3, 2, 3, -2))
sketch13.addConstraint(Sketcher.Constraint("Symmetric", 0, 3, 3, 3, -2))
sketch13.addConstraint(Sketcher.Constraint("Vertical", 0, 3, 1, 3))
sketch13.addConstraint(Sketcher.Constraint("Diameter", 0, Q("4.05 mm")))
sketch13.addConstraint(Sketcher.Constraint("DistanceX", 0, 3, -1, 1, Q("9 mm")))
sketch13.addConstraint(Sketcher.Constraint("DistanceY", 0, 3, -1, 1, Q("244 mm")))
sketch13.addConstraint(Sketcher.Constraint("DistanceY", 1, 3, -1, 1, Q("216 mm")))
sketch13.setExpression("Constraints[6]", "Params.sketch13_diameter")
pocket12 = body.newObject("PartDesign::Pocket", "Pocket011")
pocket12.Profile = sketch13
pocket12.setExpression("Length", "Params.pocket12_length")
pocket12.Reversed = True

# Sketch on XZ plane
sketch14 = body.newObject("Sketcher::SketchObject", "Sketch013")
sketch14.AttachmentSupport = (doc.getObject("XZ_Plane"), [""])
sketch14.MapMode = "FlatFace"
sketch14.AttachmentOffset = App.Placement(App.Vector(0, 0, 10), App.Rotation())
sketch14.addGeometry(Part.Circle(App.Vector(-9, -216, 0), App.Vector(0, 0, 1), 3.8), False)
sketch14.addGeometry(Part.Circle(App.Vector(9, -216, 0), App.Vector(0, 0, 1), 3.8), False)
sketch14.addGeometry(Part.Circle(App.Vector(-9, -244, 0), App.Vector(0, 0, 1), 3.8), False)
sketch14.addGeometry(Part.Circle(App.Vector(9, -244, 0), App.Vector(0, 0, 1), 3.8), False)
sketch14.addConstraint(Sketcher.Constraint("Equal", 0, 1))
sketch14.addConstraint(Sketcher.Constraint("Equal", 1, 2))
sketch14.addConstraint(Sketcher.Constraint("Equal", 2, 3))
sketch14.addConstraint(Sketcher.Constraint("Symmetric", 0, 3, 1, 3, -2))
sketch14.addConstraint(Sketcher.Constraint("Symmetric", 2, 3, 3, 3, -2))
sketch14.addConstraint(Sketcher.Constraint("Vertical", 0, 3, 2, 3))
sketch14.addConstraint(Sketcher.Constraint("Diameter", 0, Q("7.6 mm")))
sketch14.addConstraint(Sketcher.Constraint("DistanceX", 0, 3, -1, 1, Q("9 mm")))
sketch14.addConstraint(Sketcher.Constraint("DistanceY", 0, 3, -1, 1, Q("216 mm")))
sketch14.addConstraint(Sketcher.Constraint("DistanceY", 2, 3, -1, 1, Q("244 mm")))
sketch14.setExpression("Constraints[6]", "Params.sketch14_diameter")
pocket13 = body.newObject("PartDesign::Pocket", "Pocket012")
pocket13.Profile = sketch14
pocket13.setExpression("Length", "Params.pocket13_length")
doc.recompute()

mirrored3 = body.newObject("PartDesign::Mirrored", "Mirrored002")
mirrored3.Originals = [pocket12, pocket13]
mirrored3.MirrorPlane = (doc.getObject("XY_Plane"), [""])
body.Tip = mirrored3

doc.recompute()
